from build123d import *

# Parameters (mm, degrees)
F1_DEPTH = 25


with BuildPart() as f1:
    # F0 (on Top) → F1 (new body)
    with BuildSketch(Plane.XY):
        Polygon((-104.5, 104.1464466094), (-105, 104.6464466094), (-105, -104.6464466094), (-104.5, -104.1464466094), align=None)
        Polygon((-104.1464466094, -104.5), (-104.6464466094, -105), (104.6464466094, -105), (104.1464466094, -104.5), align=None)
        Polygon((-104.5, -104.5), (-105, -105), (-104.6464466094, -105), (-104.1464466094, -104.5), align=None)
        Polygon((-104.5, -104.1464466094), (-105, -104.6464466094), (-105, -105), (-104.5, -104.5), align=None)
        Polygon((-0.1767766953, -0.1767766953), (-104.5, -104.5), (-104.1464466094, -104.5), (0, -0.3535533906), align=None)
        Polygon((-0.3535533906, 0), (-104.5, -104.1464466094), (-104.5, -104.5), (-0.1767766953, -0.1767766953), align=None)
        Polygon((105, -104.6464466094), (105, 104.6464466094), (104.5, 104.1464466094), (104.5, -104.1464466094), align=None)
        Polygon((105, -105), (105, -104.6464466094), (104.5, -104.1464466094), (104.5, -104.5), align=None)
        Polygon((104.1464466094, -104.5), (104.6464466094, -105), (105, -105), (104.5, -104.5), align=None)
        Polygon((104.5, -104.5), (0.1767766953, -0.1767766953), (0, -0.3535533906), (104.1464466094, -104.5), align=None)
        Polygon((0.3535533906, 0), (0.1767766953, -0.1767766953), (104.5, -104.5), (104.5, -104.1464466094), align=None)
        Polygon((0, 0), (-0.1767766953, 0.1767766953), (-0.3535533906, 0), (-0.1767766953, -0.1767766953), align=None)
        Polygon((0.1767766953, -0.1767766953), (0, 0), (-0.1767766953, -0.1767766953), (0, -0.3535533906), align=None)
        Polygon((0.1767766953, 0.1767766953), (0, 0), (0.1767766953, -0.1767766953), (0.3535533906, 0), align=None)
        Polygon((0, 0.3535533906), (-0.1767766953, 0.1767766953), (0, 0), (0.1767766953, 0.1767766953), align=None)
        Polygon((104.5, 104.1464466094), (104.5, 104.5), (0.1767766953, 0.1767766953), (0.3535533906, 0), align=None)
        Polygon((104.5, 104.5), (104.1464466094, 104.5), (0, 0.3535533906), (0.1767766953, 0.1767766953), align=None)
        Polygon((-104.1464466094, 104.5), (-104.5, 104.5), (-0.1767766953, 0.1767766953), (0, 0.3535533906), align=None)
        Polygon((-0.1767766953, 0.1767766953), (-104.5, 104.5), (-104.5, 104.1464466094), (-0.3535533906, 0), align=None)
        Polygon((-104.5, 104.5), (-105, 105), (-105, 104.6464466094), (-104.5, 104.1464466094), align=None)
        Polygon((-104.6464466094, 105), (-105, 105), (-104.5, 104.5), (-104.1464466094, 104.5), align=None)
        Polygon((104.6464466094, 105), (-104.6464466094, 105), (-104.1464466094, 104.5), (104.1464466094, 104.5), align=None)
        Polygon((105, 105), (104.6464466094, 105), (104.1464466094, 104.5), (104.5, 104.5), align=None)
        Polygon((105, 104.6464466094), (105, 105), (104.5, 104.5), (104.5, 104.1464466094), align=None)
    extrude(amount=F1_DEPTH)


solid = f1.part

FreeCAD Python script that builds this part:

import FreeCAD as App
import Part
import Sketcher
from FreeCAD import Vector
Q = App.Units.Quantity

doc = App.newDocument("Part")
body = doc.addObject("PartDesign::Body", "Body")

# Sketch on XY plane
sketch1 = body.newObject("Sketcher::SketchObject", "Sketch")
sketch1.AttachmentSupport = (doc.getObject("XY_Plane"), [""])
sketch1.MapMode = "FlatFace"
sketch1.addGeometry(Part.LineSegment(Vector(105, -105, 0), Vector(105, 105, 0)), False)
sketch1.addGeometry(Part.LineSegment(Vector(105, 105, 0), Vector(-105, 105, 0)), False)
sketch1.addGeometry(Part.LineSegment(Vector(-105, 105, 0), Vector(-105, -105, 0)), False)
sketch1.addGeometry(Part.LineSegment(Vector(-105, -105, 0), Vector(105, -105, 0)), False)
sketch1.addGeometry(Part.LineSegment(Vector(-104.146447, -104.5, 0), Vector(0, -0.353553, 0)), False)
sketch1.addGeometry(Part.LineSegment(Vector(0, -0.353553, 0), Vector(104.146447, -104.5, 0)), False)
sketch1.addGeometry(Part.LineSegment(Vector(104.146447, -104.5, 0), Vector(-104.146447, -104.5, 0)), False)
sketch1.addGeometry(Part.LineSegment(Vector(-104.5, -104.146447, 0), Vector(-104.5, 104.146447, 0)), False)
sketch1.addGeometry(Part.LineSegment(Vector(-104.5, 104.146447, 0), Vector(-0.353553, 0, 0)), False)
sketch1.addGeometry(Part.LineSegment(Vector(-0.353553, 0, 0), Vector(-104.5, -104.146447, 0)), False)
sketch1.addGeometry(Part.LineSegment(Vector(0.353553, 0, 0), Vector(104.5, 104.146447, 0)), False)
sketch1.addGeometry(Part.LineSegment(Vector(104.5, 104.146447, 0), Vector(104.5, -104.146447, 0)), False)
sketch1.addGeometry(Part.LineSegment(Vector(104.5, -104.146447, 0), Vector(0.353553, 0, 0)), False)
sketch1.addGeometry(Part.LineSegment(Vector(-104.146447, 104.5, 0), Vector(104.146447, 104.5, 0)), False)
sketch1.addGeometry(Part.LineSegment(Vector(104.146447, 104.5, 0), Vector(0, 0.353553, 0)), False)
sketch1.addGeometry(Part.LineSegment(Vector(0, 0.353553, 0), Vector(-104.146447, 104.5, 0)), False)
sketch1.addConstraint(Sketcher.Constraint("Coincident", 0, 2, 1, 1))
sketch1.addConstraint(Sketcher.Constraint("Coincident", 1, 2, 2, 1))
sketch1.addConstraint(Sketcher.Constraint("Coincident", 2, 2, 3, 1))
sketch1.addConstraint(Sketcher.Constraint("Coincident", 3, 2, 0, 1))
sketch1.addConstraint(Sketcher.Constraint("Coincident", 4, 2, 5, 1))
sketch1.addConstraint(Sketcher.Constraint("Coincident", 5, 2, 6, 1))
sketch1.addConstraint(Sketcher.Constraint("Coincident", 6, 2, 4, 1))
sketch1.addConstraint(Sketcher.Constraint("Coincident", 7, 2, 8, 1))
sketch1.addConstraint(Sketcher.Constraint("Coincident", 8, 2, 9, 1))
sketch1.addConstraint(Sketcher.Constraint("Coincident", 9, 2, 7, 1))
sketch1.addConstraint(Sketcher.Constraint("Coincident", 10, 2, 11, 1))
sketch1.addConstraint(Sketcher.Constraint("Coincident", 11, 2, 12, 1))
sketch1.addConstraint(Sketcher.Constraint("Coincident", 12, 2, 10, 1))
sketch1.addConstraint(Sketcher.Constraint("Coincident", 13, 2, 14, 1))
sketch1.addConstraint(Sketcher.Constraint("Coincident", 14, 2, 15, 1))
sketch1.addConstraint(Sketcher.Constraint("Coincident", 15, 2, 13, 1))
sketch1.addConstraint(Sketcher.Constraint("Vertical", 0))
sketch1.addConstraint(Sketcher.Constraint("Horizontal", 1))
sketch1.addConstraint(Sketcher.Constraint("Vertical", 2))
sketch1.addConstraint(Sketcher.Constraint("Horizontal", 3))
sketch1.addConstraint(Sketcher.Constraint("Horizontal", 6))
sketch1.addConstraint(Sketcher.Constraint("Vertical", 7))
sketch1.addConstraint(Sketcher.Constraint("Vertical", 11))
sketch1.addConstraint(Sketcher.Constraint("Horizontal", 13))
sketch1.addConstraint(Sketcher.Constraint("Symmetric", 0, 2, 2, 2, -1, 1))
sketch1.addConstraint(Sketcher.Constraint("Symmetric", 9, 2, 10, 2, -1, 1))
sketch1.addConstraint(Sketcher.Constraint("Symmetric", 8, 2, 12, 2, -1, 1))
sketch1.addConstraint(Sketcher.Constraint("Symmetric", 6, 2, 13, 2, -1, 1))
sketch1.addConstraint(Sketcher.Constraint("Symmetric", 4, 2, 14, 2, -1, 1))
sketch1.addConstraint(Sketcher.Constraint("PointOnObject", 4, 2, -2))
sketch1.addConstraint(Sketcher.Constraint("PointOnObject", 8, 2, -1))
sketch1.addConstraint(Sketcher.Constraint("Perpendicular", 4, 5))
sketch1.addConstraint(Sketcher.Constraint("Parallel", 5, 8))
sketch1.addConstraint(Sketcher.Constraint("Perpendicular", 8, 9))
sketch1.addConstraint(Sketcher.Constraint("Perpendicular", 10, 12))
sketch1.addConstraint(Sketcher.Constraint("Perpendicular", 14, 15))
sketch1.addConstraint(Sketcher.Constraint("Horizontal", 7, 2, 10, 2))
sketch1.addConstraint(Sketcher.Constraint("Equal", 3, 0))
sketch1.addConstraint(Sketcher.Constraint("Equal", 13, 7))
sketch1.addConstraint(Sketcher.Constraint("DistanceX", 1, 2, 1, 1, Q("210 mm")))
sketch1.addConstraint(Sketcher.Constraint("DistanceX", 7, 2, 10, 2, Q("209 mm")))
sketch1.addConstraint(Sketcher.Constraint("DistanceY", 5, 2, -1, 1, Q("104.5 mm")))
sketch1.addConstraint(Sketcher.Constraint("DistanceX", 6, 2, 6, 1, Q("208.292893 mm")))
pad1 = body.newObject("PartDesign::Pad", "Pad")
pad1.Profile = sketch1
pad1.Length = 25

doc.recompute()
